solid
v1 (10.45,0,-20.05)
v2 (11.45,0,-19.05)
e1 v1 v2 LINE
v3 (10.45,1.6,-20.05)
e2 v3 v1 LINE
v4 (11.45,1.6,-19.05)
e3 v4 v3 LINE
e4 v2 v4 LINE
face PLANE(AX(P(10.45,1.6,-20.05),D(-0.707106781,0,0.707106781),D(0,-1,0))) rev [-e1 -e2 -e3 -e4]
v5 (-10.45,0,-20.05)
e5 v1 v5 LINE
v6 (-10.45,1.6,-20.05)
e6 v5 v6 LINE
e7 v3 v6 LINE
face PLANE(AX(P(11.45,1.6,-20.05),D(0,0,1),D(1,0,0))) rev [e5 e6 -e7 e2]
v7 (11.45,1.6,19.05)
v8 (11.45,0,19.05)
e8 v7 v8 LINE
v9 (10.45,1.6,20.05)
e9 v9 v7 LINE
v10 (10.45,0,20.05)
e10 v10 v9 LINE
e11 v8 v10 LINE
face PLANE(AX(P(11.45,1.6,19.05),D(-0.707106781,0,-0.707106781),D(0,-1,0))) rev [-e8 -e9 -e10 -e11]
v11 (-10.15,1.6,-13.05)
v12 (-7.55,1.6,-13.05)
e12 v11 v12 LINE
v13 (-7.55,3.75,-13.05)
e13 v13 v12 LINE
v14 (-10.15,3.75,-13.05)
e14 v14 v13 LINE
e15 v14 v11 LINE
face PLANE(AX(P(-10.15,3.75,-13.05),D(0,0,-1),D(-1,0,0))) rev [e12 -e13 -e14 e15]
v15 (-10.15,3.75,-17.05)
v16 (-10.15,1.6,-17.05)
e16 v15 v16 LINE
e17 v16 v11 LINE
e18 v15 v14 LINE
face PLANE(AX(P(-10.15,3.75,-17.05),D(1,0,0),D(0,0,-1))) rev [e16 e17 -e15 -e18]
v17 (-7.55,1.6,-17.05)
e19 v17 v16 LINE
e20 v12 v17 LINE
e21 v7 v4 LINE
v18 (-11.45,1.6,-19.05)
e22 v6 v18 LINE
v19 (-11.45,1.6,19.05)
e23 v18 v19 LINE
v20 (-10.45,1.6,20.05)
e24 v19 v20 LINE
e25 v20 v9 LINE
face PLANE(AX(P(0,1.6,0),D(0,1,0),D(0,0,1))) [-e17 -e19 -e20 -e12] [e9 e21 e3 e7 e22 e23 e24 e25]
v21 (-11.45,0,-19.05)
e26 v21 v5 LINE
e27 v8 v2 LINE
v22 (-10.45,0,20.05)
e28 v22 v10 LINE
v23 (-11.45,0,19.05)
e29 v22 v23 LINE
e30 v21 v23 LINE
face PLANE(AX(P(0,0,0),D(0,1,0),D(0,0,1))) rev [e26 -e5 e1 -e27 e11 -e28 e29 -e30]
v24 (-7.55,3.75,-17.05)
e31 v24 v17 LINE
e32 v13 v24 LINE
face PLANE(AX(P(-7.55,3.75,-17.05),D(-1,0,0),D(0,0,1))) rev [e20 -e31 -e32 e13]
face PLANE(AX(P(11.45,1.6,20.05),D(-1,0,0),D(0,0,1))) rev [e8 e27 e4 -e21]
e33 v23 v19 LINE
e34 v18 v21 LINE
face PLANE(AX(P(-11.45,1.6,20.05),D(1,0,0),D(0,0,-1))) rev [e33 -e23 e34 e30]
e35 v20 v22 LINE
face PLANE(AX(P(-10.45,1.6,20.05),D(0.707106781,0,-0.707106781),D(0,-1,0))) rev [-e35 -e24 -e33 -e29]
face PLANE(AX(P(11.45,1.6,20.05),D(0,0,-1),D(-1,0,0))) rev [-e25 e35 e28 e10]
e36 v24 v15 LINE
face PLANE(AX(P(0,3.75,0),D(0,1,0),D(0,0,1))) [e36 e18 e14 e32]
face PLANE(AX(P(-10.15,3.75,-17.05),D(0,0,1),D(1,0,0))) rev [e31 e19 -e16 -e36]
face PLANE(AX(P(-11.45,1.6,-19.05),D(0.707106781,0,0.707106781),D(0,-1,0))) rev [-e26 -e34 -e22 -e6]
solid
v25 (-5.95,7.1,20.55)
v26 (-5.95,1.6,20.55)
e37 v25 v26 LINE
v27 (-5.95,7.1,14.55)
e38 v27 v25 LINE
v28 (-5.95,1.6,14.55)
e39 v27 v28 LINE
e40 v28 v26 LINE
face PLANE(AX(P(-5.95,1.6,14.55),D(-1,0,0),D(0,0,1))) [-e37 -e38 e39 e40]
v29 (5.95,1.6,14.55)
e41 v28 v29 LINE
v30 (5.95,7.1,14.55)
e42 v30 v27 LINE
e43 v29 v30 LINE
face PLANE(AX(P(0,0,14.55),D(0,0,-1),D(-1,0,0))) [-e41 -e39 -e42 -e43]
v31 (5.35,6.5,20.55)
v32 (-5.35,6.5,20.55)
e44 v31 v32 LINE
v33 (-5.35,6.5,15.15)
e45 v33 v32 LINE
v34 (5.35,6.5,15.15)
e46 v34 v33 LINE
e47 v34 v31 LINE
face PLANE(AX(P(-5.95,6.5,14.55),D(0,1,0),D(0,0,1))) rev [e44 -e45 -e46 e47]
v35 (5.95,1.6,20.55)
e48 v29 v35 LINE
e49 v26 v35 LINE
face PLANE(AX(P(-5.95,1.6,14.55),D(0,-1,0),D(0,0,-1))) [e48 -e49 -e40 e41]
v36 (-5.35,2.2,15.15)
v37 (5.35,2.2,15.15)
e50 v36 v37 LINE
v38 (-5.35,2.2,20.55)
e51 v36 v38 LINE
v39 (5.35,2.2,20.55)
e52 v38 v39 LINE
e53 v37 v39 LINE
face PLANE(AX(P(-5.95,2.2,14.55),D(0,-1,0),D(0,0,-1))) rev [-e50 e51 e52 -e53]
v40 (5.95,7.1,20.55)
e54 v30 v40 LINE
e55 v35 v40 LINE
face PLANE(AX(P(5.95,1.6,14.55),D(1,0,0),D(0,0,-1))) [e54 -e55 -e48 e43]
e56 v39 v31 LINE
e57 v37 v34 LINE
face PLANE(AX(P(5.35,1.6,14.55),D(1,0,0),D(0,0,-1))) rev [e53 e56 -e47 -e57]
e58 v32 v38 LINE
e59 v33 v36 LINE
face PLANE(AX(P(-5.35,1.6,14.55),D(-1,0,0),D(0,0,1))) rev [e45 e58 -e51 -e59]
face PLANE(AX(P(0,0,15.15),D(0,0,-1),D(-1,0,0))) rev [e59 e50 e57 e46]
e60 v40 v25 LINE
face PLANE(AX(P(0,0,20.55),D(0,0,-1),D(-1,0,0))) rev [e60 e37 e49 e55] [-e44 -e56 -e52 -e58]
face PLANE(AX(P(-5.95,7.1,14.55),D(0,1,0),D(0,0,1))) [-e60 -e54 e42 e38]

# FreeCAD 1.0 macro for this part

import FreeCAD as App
import Part
import Sketcher

V = App.Vector


def edges_at(feature, points):
    """Names of the edges that pass closest to the given points."""
    edges = feature.Shape.Edges
    near = lambda p: min(range(len(edges)), key=lambda i: edges[i].distToShape(Part.Vertex(*p))[0])
    return sorted({f"Edge{near(p) + 1}" for p in points})


def faces_at(feature, points):
    """Names of the faces that lie closest to the given points."""
    faces = feature.Shape.Faces
    near = lambda p: min(range(len(faces)), key=lambda i: faces[i].distToShape(Part.Vertex(*p))[0])
    return sorted({f"Face{near(p) + 1}" for p in points})


def add_polygon(sketch, points):
    """Adds a closed chain of lines whose ends are joined by coincident constraints."""
    first, n = sketch.GeometryCount, len(points)
    for a, b in zip(points, points[1:] + points[:1]):
        sketch.addGeometry(Part.LineSegment(App.Vector(*a, 0), App.Vector(*b, 0)), False)
    for i in range(n):
        sketch.addConstraint(Sketcher.Constraint("Coincident", first + i, 2, first + (i + 1) % n, 1))

doc = App.newDocument("Part")
body = doc.addObject("PartDesign::Body", "Body")

sketch1 = body.newObject("Sketcher::SketchObject", "Sketch")
sketch1.AttachmentSupport = (doc.getObject("XZ_Plane"), [""])
sketch1.MapMode = "FlatFace"
add_polygon(sketch1, [(-11, -20), (-11, 20), (11, 20), (11, -20)])
sketch1.addConstraint(Sketcher.Constraint("Vertical", 0))
sketch1.addConstraint(Sketcher.Constraint("Horizontal", 1))
sketch1.addConstraint(Sketcher.Constraint("Vertical", 2))
sketch1.addConstraint(Sketcher.Constraint("Horizontal", 3))
sketch1.addConstraint(Sketcher.Constraint("Symmetric", 0, 2, 2, 2, -1, 1))
sketch1.addConstraint(Sketcher.Constraint("DistanceX", 1, 1, 1, 2, 22.9))
sketch1.addConstraint(Sketcher.Constraint("DistanceY", 0, 1, 0, 2, 40.1))
pad1 = body.newObject("PartDesign::Pad", "Pad")
pad1.Profile = sketch1
pad1.Length = 1.6
pad1.Reversed = True
doc.recompute()

chamfer = body.newObject("PartDesign::Chamfer", "Chamfer")
chamfer.Base = (pad1, edges_at(pad1, [
    (-11.45, 0.8, -20.05),
    (11.45, 0.8, -20.05),
    (11.45, 0.8, 20.05),
    (-11.45, 0.8, 20.05),
]))
chamfer.Size = 1

sketch2 = body.newObject("Sketcher::SketchObject", "Sketch001")
sketch2.AttachmentSupport = (doc.getObject("XZ_Plane"), [""])
sketch2.MapMode = "FlatFace"
sketch2.AttachmentOffset = App.Placement(V(0, 0, -1.6), App.Rotation())
add_polygon(sketch2, [(-10.2, -17.1), (-10.2, -13.1), (-7.5, -13.1), (-7.5, -17.1)])
sketch2.addConstraint(Sketcher.Constraint("Vertical", 0))
sketch2.addConstraint(Sketcher.Constraint("Horizontal", 1))
sketch2.addConstraint(Sketcher.Constraint("Vertical", 2))
sketch2.addConstraint(Sketcher.Constraint("Horizontal", 3))
sketch2.addConstraint(Sketcher.Constraint("DistanceY", 0, 1, 0, 2, 4.0))
sketch2.addConstraint(Sketcher.Constraint("DistanceX", 1, 1, 1, 2, 2.6))
sketch2.addConstraint(Sketcher.Constraint("DistanceX", 0, 2, -1, 1, 10.15))
sketch2.addConstraint(Sketcher.Constraint("DistanceY", 0, 2, -1, 1, 13.05))
pad2 = body.newObject("PartDesign::Pad", "Pad001")
pad2.Profile = sketch2
pad2.Length = 2.15
pad2.Reversed = True
body2 = doc.addObject("PartDesign::Body", "Body001")

sketch3 = body2.newObject("Sketcher::SketchObject", "Sketch002")
sketch3.AttachmentSupport = (doc.getObject("XY_Plane001"), [""])
sketch3.MapMode = "FlatFace"
sketch3.AttachmentOffset = App.Placement(V(0, 0, 20.05), App.Rotation())
add_polygon(sketch3, [(-6, 7), (-6, 2), (6, 2), (6, 7)])
sketch3.addConstraint(Sketcher.Constraint("Vertical", 0))
sketch3.addConstraint(Sketcher.Constraint("Horizontal", 1))
sketch3.addConstraint(Sketcher.Constraint("Vertical", 2))
sketch3.addConstraint(Sketcher.Constraint("Horizontal", 3))
sketch3.addConstraint(Sketcher.Constraint("DistanceX", 1, 1, 1, 2, 11.9))
sketch3.addConstraint(Sketcher.Constraint("DistanceY", 0, 2, 0, 1, 5.5))
sketch3.addConstraint(Sketcher.Constraint("DistanceY", -1, 1, 0, 2, 1.6))
sketch3.addConstraint(Sketcher.Constraint("DistanceX", 0, 2, -1, 1, 5.95))
pad3 = body2.newObject("PartDesign::Pad", "Pad002")
pad3.Profile = sketch3
pad3.Type = "TwoLengths"
pad3.Length = 0.5
pad3.Length2 = 5.5
doc.recompute()

thickness = body2.newObject("PartDesign::Thickness", "Thickness")
thickness.Base = (pad3, faces_at(pad3, [(0, 4.35, 20.55)]))
thickness.Value = 0.6
thickness.Reversed = True
thickness.Join = "Intersection"

doc.recompute()
